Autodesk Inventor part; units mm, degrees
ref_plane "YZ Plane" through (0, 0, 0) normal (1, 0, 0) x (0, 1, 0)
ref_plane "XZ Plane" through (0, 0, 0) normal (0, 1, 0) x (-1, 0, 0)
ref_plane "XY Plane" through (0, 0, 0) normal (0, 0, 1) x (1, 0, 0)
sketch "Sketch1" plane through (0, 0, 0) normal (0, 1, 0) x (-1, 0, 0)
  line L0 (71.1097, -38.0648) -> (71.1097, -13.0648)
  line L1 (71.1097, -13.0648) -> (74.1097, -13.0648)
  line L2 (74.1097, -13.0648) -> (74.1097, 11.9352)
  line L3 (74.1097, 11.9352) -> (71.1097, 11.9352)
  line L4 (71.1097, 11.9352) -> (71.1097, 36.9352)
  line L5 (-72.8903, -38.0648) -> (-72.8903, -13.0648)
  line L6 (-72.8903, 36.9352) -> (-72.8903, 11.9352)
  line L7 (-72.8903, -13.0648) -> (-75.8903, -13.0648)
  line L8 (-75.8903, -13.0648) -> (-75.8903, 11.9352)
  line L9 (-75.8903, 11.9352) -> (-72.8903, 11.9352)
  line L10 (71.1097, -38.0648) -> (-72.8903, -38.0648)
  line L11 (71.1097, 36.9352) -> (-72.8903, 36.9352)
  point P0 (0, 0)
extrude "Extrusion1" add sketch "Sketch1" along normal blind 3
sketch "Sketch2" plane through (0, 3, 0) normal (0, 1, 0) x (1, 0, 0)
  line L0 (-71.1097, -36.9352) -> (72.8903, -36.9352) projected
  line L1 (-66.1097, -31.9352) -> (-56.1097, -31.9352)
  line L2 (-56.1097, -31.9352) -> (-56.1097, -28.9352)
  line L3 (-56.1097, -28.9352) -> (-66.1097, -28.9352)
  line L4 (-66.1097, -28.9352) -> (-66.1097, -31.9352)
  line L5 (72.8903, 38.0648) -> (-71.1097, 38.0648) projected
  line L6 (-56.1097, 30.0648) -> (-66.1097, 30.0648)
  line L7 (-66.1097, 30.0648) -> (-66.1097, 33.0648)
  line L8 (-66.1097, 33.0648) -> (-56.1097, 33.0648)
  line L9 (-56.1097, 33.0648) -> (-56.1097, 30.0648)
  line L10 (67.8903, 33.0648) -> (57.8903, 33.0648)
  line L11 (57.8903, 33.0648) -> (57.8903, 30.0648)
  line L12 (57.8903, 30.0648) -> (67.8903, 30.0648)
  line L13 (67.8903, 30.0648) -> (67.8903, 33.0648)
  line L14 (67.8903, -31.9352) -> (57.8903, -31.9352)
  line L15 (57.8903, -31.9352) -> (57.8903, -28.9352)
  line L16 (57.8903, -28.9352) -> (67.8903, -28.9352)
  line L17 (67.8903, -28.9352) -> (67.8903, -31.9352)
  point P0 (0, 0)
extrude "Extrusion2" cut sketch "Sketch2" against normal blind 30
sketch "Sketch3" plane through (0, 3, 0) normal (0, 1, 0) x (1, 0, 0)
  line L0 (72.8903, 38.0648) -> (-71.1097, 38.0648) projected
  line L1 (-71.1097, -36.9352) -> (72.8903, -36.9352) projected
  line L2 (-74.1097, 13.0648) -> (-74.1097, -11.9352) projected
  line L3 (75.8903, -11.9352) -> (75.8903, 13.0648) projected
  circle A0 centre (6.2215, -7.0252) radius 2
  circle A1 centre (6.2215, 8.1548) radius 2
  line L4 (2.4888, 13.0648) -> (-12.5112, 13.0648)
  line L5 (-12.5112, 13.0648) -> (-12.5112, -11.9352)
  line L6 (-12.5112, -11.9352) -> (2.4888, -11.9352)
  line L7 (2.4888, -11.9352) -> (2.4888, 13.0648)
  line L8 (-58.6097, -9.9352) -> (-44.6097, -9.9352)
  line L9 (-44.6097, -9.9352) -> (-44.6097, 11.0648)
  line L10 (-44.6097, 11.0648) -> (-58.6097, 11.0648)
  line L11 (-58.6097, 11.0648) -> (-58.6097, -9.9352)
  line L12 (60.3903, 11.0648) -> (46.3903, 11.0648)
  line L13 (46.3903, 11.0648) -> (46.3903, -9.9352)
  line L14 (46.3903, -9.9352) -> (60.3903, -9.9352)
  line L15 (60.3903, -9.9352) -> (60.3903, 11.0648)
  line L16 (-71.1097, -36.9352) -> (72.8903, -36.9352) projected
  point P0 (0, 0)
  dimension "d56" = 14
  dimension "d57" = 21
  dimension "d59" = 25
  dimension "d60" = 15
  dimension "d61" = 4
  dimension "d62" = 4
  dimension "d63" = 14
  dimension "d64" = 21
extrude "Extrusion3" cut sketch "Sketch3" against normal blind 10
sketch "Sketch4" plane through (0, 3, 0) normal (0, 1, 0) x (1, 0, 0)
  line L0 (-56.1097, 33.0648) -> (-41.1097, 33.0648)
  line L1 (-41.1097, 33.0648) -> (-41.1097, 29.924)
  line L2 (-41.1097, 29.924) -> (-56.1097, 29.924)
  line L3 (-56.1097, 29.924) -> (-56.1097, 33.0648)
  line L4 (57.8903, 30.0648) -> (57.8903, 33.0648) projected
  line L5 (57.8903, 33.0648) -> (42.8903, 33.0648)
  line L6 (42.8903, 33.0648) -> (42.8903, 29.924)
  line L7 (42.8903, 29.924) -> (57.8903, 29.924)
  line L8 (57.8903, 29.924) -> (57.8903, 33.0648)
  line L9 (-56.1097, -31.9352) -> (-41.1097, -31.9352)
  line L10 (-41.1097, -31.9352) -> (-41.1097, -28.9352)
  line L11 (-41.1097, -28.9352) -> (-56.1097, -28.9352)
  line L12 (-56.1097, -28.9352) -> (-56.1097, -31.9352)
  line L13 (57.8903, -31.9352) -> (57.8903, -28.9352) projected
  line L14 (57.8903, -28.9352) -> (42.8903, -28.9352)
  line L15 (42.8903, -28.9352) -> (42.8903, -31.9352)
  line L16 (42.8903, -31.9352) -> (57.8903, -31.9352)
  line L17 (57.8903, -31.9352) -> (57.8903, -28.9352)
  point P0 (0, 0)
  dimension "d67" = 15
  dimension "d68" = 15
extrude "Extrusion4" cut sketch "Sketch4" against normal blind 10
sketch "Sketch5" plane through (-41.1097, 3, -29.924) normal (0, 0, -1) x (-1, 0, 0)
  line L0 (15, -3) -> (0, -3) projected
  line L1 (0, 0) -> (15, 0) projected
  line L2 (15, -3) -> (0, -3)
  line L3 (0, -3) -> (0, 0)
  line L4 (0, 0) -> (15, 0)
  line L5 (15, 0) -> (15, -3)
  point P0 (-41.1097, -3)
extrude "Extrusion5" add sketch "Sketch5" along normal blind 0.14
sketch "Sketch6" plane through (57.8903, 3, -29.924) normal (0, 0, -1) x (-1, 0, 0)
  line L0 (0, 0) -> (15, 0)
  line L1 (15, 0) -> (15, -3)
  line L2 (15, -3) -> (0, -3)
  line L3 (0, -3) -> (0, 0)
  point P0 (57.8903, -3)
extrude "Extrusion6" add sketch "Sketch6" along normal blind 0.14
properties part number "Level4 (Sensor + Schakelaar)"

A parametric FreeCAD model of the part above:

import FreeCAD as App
import Part
import Sketcher

V = App.Vector
Q = App.Units.Quantity

doc = App.newDocument("Part")
body = doc.addObject("PartDesign::Body", "Body")

# Sketch on XZ plane
sketch1 = body.newObject("Sketcher::SketchObject", "Sketch")
sketch1.AttachmentSupport = (doc.getObject("XZ_Plane"), [""])
sketch1.MapMode = "FlatFace"
sketch1.addGeometry([
    Part.LineSegment(V(72.8903, -38.0648, 0), V(-71.1097, -38.0648, 0)),  # 0
    Part.LineSegment(V(-71.1097, -38.0648, 0), V(-71.1097, -13.0648, 0)),  # 1
    Part.LineSegment(V(-71.1097, -13.0648, 0), V(-74.1097, -13.0648, 0)),  # 2
    Part.LineSegment(V(-74.1097, -13.0648, 0), V(-74.1097, 11.9352, 0)),  # 3
    Part.LineSegment(V(-74.1097, 11.9352, 0), V(-71.1097, 11.9352, 0)),  # 4
    Part.LineSegment(V(-71.1097, 11.9352, 0), V(-71.1097, 36.9352, 0)),  # 5
    Part.LineSegment(V(-71.1097, 36.9352, 0), V(72.8903, 36.9352, 0)),  # 6
    Part.LineSegment(V(72.8903, 36.9352, 0), V(72.8903, 11.9352, 0)),  # 7
    Part.LineSegment(V(72.8903, 11.9352, 0), V(75.8903, 11.9352, 0)),  # 8
    Part.LineSegment(V(75.8903, 11.9352, 0), V(75.8903, -13.0648, 0)),  # 9
    Part.LineSegment(V(75.8903, -13.0648, 0), V(72.8903, -13.0648, 0)),  # 10
    Part.LineSegment(V(72.8903, -13.0648, 0), V(72.8903, -38.0648, 0)),  # 11
], False)
sketch1.addConstraint([
    Sketcher.Constraint("Coincident", 0, 2, 1, 1),
    Sketcher.Constraint("Coincident", 1, 2, 2, 1),
    Sketcher.Constraint("Coincident", 2, 2, 3, 1),
    Sketcher.Constraint("Coincident", 3, 2, 4, 1),
    Sketcher.Constraint("Coincident", 4, 2, 5, 1),
    Sketcher.Constraint("Coincident", 5, 2, 6, 1),
    Sketcher.Constraint("Coincident", 6, 2, 7, 1),
    Sketcher.Constraint("Coincident", 7, 2, 8, 1),
    Sketcher.Constraint("Coincident", 8, 2, 9, 1),
    Sketcher.Constraint("Coincident", 9, 2, 10, 1),
    Sketcher.Constraint("Coincident", 10, 2, 11, 1),
    Sketcher.Constraint("Coincident", 11, 2, 0, 1),
    Sketcher.Constraint("Horizontal", 0),
    Sketcher.Constraint("Vertical", 1),
    Sketcher.Constraint("Horizontal", 2),
    Sketcher.Constraint("Vertical", 3),
    Sketcher.Constraint("Horizontal", 4),
    Sketcher.Constraint("Vertical", 5),
    Sketcher.Constraint("Horizontal", 6),
    Sketcher.Constraint("Vertical", 7),
    Sketcher.Constraint("Horizontal", 8),
    Sketcher.Constraint("Vertical", 9),
    Sketcher.Constraint("Horizontal", 10),
    Sketcher.Constraint("Vertical", 11),
    Sketcher.Constraint("Horizontal", 4, 2, 7, 2),
    Sketcher.Constraint("Horizontal", 2, 2, 9, 2),
    Sketcher.Constraint("Vertical", 1, 2, 4, 2),
    Sketcher.Constraint("Vertical", 7, 2, 10, 2),
    Sketcher.Constraint("Equal", 4, 8),
    Sketcher.Constraint("Equal", 1, 3),
    Sketcher.Constraint("Equal", 3, 5),
    Sketcher.Constraint("DistanceX", 0, 2, 0, 1, Q("144 mm")),
    Sketcher.Constraint("DistanceX", 2, 2, 2, 1, Q("3 mm")),
    Sketcher.Constraint("DistanceY", 1, 1, 1, 2, Q("25 mm")),
    Sketcher.Constraint("DistanceX", 0, 2, -1, 1, Q("71.1097 mm")),
    Sketcher.Constraint("DistanceY", 0, 2, -1, 1, Q("38.0648 mm")),
])
pad1 = body.newObject("PartDesign::Pad", "Pad")
pad1.Profile = sketch1
pad1.Length = 3
pad1.Reversed = True

# Sketch on XZ plane
sketch2 = body.newObject("Sketcher::SketchObject", "Sketch001")
sketch2.AttachmentSupport = (doc.getObject("XZ_Plane"), [""])
sketch2.MapMode = "FlatFace"
sketch2.AttachmentOffset = App.Placement(V(0, 0, -3), App.Rotation())
sketch2.addGeometry([
    Part.LineSegment(V(-66.1097, 28.9352, 0), V(-66.1097, 31.9352, 0)),  # 0
    Part.LineSegment(V(-66.1097, 31.9352, 0), V(-56.1097, 31.9352, 0)),  # 1
    Part.LineSegment(V(-56.1097, 31.9352, 0), V(-56.1097, 28.9352, 0)),  # 2
    Part.LineSegment(V(-56.1097, 28.9352, 0), V(-66.1097, 28.9352, 0)),  # 3
    Part.LineSegment(V(-66.1097, -30.0648, 0), V(-56.1097, -30.0648, 0)),  # 4
    Part.LineSegment(V(-56.1097, -30.0648, 0), V(-56.1097, -33.0648, 0)),  # 5
    Part.LineSegment(V(-56.1097, -33.0648, 0), V(-66.1097, -33.0648, 0)),  # 6
    Part.LineSegment(V(-66.1097, -33.0648, 0), V(-66.1097, -30.0648, 0)),  # 7
    Part.LineSegment(V(67.8903, -30.0648, 0), V(67.8903, -33.0648, 0)),  # 8
    Part.LineSegment(V(67.8903, -33.0648, 0), V(57.8903, -33.0648, 0)),  # 9
    Part.LineSegment(V(57.8903, -33.0648, 0), V(57.8903, -30.0648, 0)),  # 10
    Part.LineSegment(V(57.8903, -30.0648, 0), V(67.8903, -30.0648, 0)),  # 11
    Part.LineSegment(V(57.8903, 31.9352, 0), V(67.8903, 31.9352, 0)),  # 12
    Part.LineSegment(V(67.8903, 31.9352, 0), V(67.8903, 28.9352, 0)),  # 13
    Part.LineSegment(V(67.8903, 28.9352, 0), V(57.8903, 28.9352, 0)),  # 14
    Part.LineSegment(V(57.8903, 28.9352, 0), V(57.8903, 31.9352, 0)),  # 15
], False)
sketch2.addConstraint([
    Sketcher.Constraint("Coincident", 0, 2, 1, 1),
    Sketcher.Constraint("Coincident", 1, 2, 2, 1),
    Sketcher.Constraint("Coincident", 2, 2, 3, 1),
    Sketcher.Constraint("Coincident", 3, 2, 0, 1),
    Sketcher.Constraint("Coincident", 4, 2, 5, 1),
    Sketcher.Constraint("Coincident", 5, 2, 6, 1),
    Sketcher.Constraint("Coincident", 6, 2, 7, 1),
    Sketcher.Constraint("Coincident", 7, 2, 4, 1),
    Sketcher.Constraint("Coincident", 8, 2, 9, 1),
    Sketcher.Constraint("Coincident", 9, 2, 10, 1),
    Sketcher.Constraint("Coincident", 10, 2, 11, 1),
    Sketcher.Constraint("Coincident", 11, 2, 8, 1),
    Sketcher.Constraint("Coincident", 12, 2, 13, 1),
    Sketcher.Constraint("Coincident", 13, 2, 14, 1),
    Sketcher.Constraint("Coincident", 14, 2, 15, 1),
    Sketcher.Constraint("Coincident", 15, 2, 12, 1),
    Sketcher.Constraint("Vertical", 0),
    Sketcher.Constraint("Horizontal", 1),
    Sketcher.Constraint("Vertical", 2),
    Sketcher.Constraint("Horizontal", 3),
    Sketcher.Constraint("Horizontal", 4),
    Sketcher.Constraint("Vertical", 5),
    Sketcher.Constraint("Horizontal", 6),
    Sketcher.Constraint("Vertical", 7),
    Sketcher.Constraint("Vertical", 8),
    Sketcher.Constraint("Horizontal", 9),
    Sketcher.Constraint("Vertical", 10),
    Sketcher.Constraint("Horizontal", 11),
    Sketcher.Constraint("Horizontal", 12),
    Sketcher.Constraint("Vertical", 13),
    Sketcher.Constraint("Horizontal", 14),
    Sketcher.Constraint("Vertical", 15),
    Sketcher.Constraint("Horizontal", 6, 2, 8, 2),
    Sketcher.Constraint("Horizontal", 7, 2, 10, 2),
    Sketcher.Constraint("Horizontal", 1, 2, 12, 2),
    Sketcher.Constraint("Horizontal", 3, 2, 13, 2),
    Sketcher.Constraint("Vertical", 2, 2, 4, 2),
    Sketcher.Constraint("Vertical", 3, 2, 6, 2),
    Sketcher.Constraint("Vertical", 11, 2, 12, 2),
    Sketcher.Constraint("Vertical", 10, 2, 14, 2),
    Sketcher.Constraint("Equal", 6, 9),
    Sketcher.Constraint("Equal", 2, 5),
    Sketcher.Constraint("DistanceX", 1, 1, 1, 2, Q("10 mm")),
    Sketcher.Constraint("DistanceY", 0, 1, 0, 2, Q("3 mm")),
    Sketcher.Constraint("DistanceY", 4, 2, 2, 2, Q("59 mm")),
    Sketcher.Constraint("DistanceX", 5, 2, 8, 2, Q("124 mm")),
    Sketcher.Constraint("DistanceX", 0, 2, -1, 1, Q("66.1097 mm")),
    Sketcher.Constraint("DistanceY", -1, 1, 0, 2, Q("31.9352 mm")),
])
pocket1 = body.newObject("PartDesign::Pocket", "Pocket")
pocket1.Profile = sketch2
pocket1.Length = 30
pocket1.Reversed = True

# Sketch on XZ plane
sketch3 = body.newObject("Sketcher::SketchObject", "Sketch002")
sketch3.AttachmentSupport = (doc.getObject("XZ_Plane"), [""])
sketch3.MapMode = "FlatFace"
sketch3.AttachmentOffset = App.Placement(V(0, 0, -3), App.Rotation())
sketch3.addGeometry([
    Part.Circle(V(6.2215, 7.0252, 0), V(0, 0, 1), 2),  # 0
    Part.Circle(V(6.2215, -8.1548, 0), V(0, 0, 1), 2),  # 1
    Part.LineSegment(V(2.4888, 11.9352, 0), V(2.4888, -13.0648, 0)),  # 2
    Part.LineSegment(V(2.4888, -13.0648, 0), V(-12.5112, -13.0648, 0)),  # 3
    Part.LineSegment(V(-12.5112, -13.0648, 0), V(-12.5112, 11.9352, 0)),  # 4
    Part.LineSegment(V(-12.5112, 11.9352, 0), V(2.4888, 11.9352, 0)),  # 5
    Part.LineSegment(V(-58.6097, -11.0648, 0), V(-58.6097, 9.9352, 0)),  # 6
    Part.LineSegment(V(-58.6097, 9.9352, 0), V(-44.6097, 9.9352, 0)),  # 7
    Part.LineSegment(V(-44.6097, 9.9352, 0), V(-44.6097, -11.0648, 0)),  # 8
    Part.LineSegment(V(-44.6097, -11.0648, 0), V(-58.6097, -11.0648, 0)),  # 9
    Part.LineSegment(V(60.3903, 9.9352, 0), V(60.3903, -11.0648, 0)),  # 10
    Part.LineSegment(V(60.3903, -11.0648, 0), V(46.3903, -11.0648, 0)),  # 11
    Part.LineSegment(V(46.3903, -11.0648, 0), V(46.3903, 9.9352, 0)),  # 12
    Part.LineSegment(V(46.3903, 9.9352, 0), V(60.3903, 9.9352, 0)),  # 13
], False)
sketch3.addConstraint([
    Sketcher.Constraint("Coincident", 2, 2, 3, 1),
    Sketcher.Constraint("Coincident", 3, 2, 4, 1),
    Sketcher.Constraint("Coincident", 4, 2, 5, 1),
    Sketcher.Constraint("Coincident", 5, 2, 2, 1),
    Sketcher.Constraint("Coincident", 6, 2, 7, 1),
    Sketcher.Constraint("Coincident", 7, 2, 8, 1),
    Sketcher.Constraint("Coincident", 8, 2, 9, 1),
    Sketcher.Constraint("Coincident", 9, 2, 6, 1),
    Sketcher.Constraint("Coincident", 10, 2, 11, 1),
    Sketcher.Constraint("Coincident", 11, 2, 12, 1),
    Sketcher.Constraint("Coincident", 12, 2, 13, 1),
    Sketcher.Constraint("Coincident", 13, 2, 10, 1),
    Sketcher.Constraint("Vertical", 2),
    Sketcher.Constraint("Horizontal", 3),
    Sketcher.Constraint("Vertical", 4),
    Sketcher.Constraint("Horizontal", 5),
    Sketcher.Constraint("Vertical", 6),
    Sketcher.Constraint("Horizontal", 7),
    Sketcher.Constraint("Vertical", 8),
    Sketcher.Constraint("Horizontal", 9),
    Sketcher.Constraint("Vertical", 10),
    Sketcher.Constraint("Horizontal", 11),
    Sketcher.Constraint("Vertical", 12),
    Sketcher.Constraint("Horizontal", 13),
    Sketcher.Constraint("Equal", 0, 1),
    Sketcher.Constraint("Horizontal", 9, 2, 10, 2),
    Sketcher.Constraint("Horizontal", 7, 2, 12, 2),
    Sketcher.Constraint("Vertical", 0, 3, 1, 3),
    Sketcher.Constraint("Equal", 9, 11),
    Sketcher.Constraint("Diameter", 0, Q("4 mm")),
    Sketcher.Constraint("DistanceX", 3, 2, 3, 1, Q("15 mm")),
    Sketcher.Constraint("DistanceX", 7, 1, 7, 2, Q("14 mm")),
    Sketcher.Constraint("DistanceY", 2, 2, 2, 1, Q("25 mm")),
    Sketcher.Constraint("DistanceY", 6, 1, 6, 2, Q("21 mm")),
    Sketcher.Constraint("DistanceY", 6, 2, 4, 2, Q("2 mm")),
    Sketcher.Constraint("DistanceY", 1, 3, 0, 3, Q("15.18 mm")),
    Sketcher.Constraint("DistanceY", 2, 2, 1, 3, Q("4.91 mm")),
    Sketcher.Constraint("DistanceX", -1, 1, 0, 3, Q("6.2215 mm")),
    Sketcher.Constraint("DistanceY", -1, 1, 0, 3, Q("7.0252 mm")),
    Sketcher.Constraint("DistanceX", -1, 1, 2, 2, Q("2.4888 mm")),
    Sketcher.Constraint("DistanceX", 6, 2, -1, 1, Q("58.6097 mm")),
    Sketcher.Constraint("DistanceX", -1, 1, 10, 2, Q("60.3903 mm")),
])
pocket2 = body.newObject("PartDesign::Pocket", "Pocket001")
pocket2.Profile = sketch3
pocket2.Length = 10
pocket2.Reversed = True

# Sketch on XZ plane
sketch4 = body.newObject("Sketcher::SketchObject", "Sketch003")
sketch4.AttachmentSupport = (doc.getObject("XZ_Plane"), [""])
sketch4.MapMode = "FlatFace"
sketch4.AttachmentOffset = App.Placement(V(0, 0, -3), App.Rotation())
sketch4.addGeometry([
    Part.LineSegment(V(-41.1097, -33.0648, 0), V(-56.1097, -33.0648, 0)),  # 0
    Part.LineSegment(V(-56.1097, -33.0648, 0), V(-56.1097, -29.924, 0)),  # 1
    Part.LineSegment(V(-56.1097, -29.924, 0), V(-41.1097, -29.924, 0)),  # 2
    Part.LineSegment(V(-41.1097, -29.924, 0), V(-41.1097, -33.0648, 0)),  # 3
    Part.LineSegment(V(57.8903, -29.924, 0), V(57.8903, -33.0648, 0)),  # 4
    Part.LineSegment(V(57.8903, -33.0648, 0), V(42.8903, -33.0648, 0)),  # 5
    Part.LineSegment(V(42.8903, -33.0648, 0), V(42.8903, -29.924, 0)),  # 6
    Part.LineSegment(V(42.8903, -29.924, 0), V(57.8903, -29.924, 0)),  # 7
    Part.LineSegment(V(-56.1097, 28.9352, 0), V(-56.1097, 31.9352, 0)),  # 8
    Part.LineSegment(V(-56.1097, 31.9352, 0), V(-41.1097, 31.9352, 0)),  # 9
    Part.LineSegment(V(-41.1097, 31.9352, 0), V(-41.1097, 28.9352, 0)),  # 10
    Part.LineSegment(V(-41.1097, 28.9352, 0), V(-56.1097, 28.9352, 0)),  # 11
    Part.LineSegment(V(42.8903, 31.9352, 0), V(57.8903, 31.9352, 0)),  # 12
    Part.LineSegment(V(57.8903, 31.9352, 0), V(57.8903, 28.9352, 0)),  # 13
    Part.LineSegment(V(57.8903, 28.9352, 0), V(42.8903, 28.9352, 0)),  # 14
    Part.LineSegment(V(42.8903, 28.9352, 0), V(42.8903, 31.9352, 0)),  # 15
], False)
sketch4.addConstraint([
    Sketcher.Constraint("Coincident", 0, 2, 1, 1),
    Sketcher.Constraint("Coincident", 1, 2, 2, 1),
    Sketcher.Constraint("Coincident", 2, 2, 3, 1),
    Sketcher.Constraint("Coincident", 3, 2, 0, 1),
    Sketcher.Constraint("Coincident", 4, 2, 5, 1),
    Sketcher.Constraint("Coincident", 5, 2, 6, 1),
    Sketcher.Constraint("Coincident", 6, 2, 7, 1),
    Sketcher.Constraint("Coincident", 7, 2, 4, 1),
    Sketcher.Constraint("Coincident", 8, 2, 9, 1),
    Sketcher.Constraint("Coincident", 9, 2, 10, 1),
    Sketcher.Constraint("Coincident", 10, 2, 11, 1),
    Sketcher.Constraint("Coincident", 11, 2, 8, 1),
    Sketcher.Constraint("Coincident", 12, 2, 13, 1),
    Sketcher.Constraint("Coincident", 13, 2, 14, 1),
    Sketcher.Constraint("Coincident", 14, 2, 15, 1),
    Sketcher.Constraint("Coincident", 15, 2, 12, 1),
    Sketcher.Constraint("Horizontal", 0),
    Sketcher.Constraint("Vertical", 1),
    Sketcher.Constraint("Horizontal", 2),
    Sketcher.Constraint("Vertical", 3),
    Sketcher.Constraint("Vertical", 4),
    Sketcher.Constraint("Horizontal", 5),
    Sketcher.Constraint("Vertical", 6),
    Sketcher.Constraint("Horizontal", 7),
    Sketcher.Constraint("Vertical", 8),
    Sketcher.Constraint("Horizontal", 9),
    Sketcher.Constraint("Vertical", 10),
    Sketcher.Constraint("Horizontal", 11),
    Sketcher.Constraint("Horizontal", 12),
    Sketcher.Constraint("Vertical", 13),
    Sketcher.Constraint("Horizontal", 14),
    Sketcher.Constraint("Vertical", 15),
    Sketcher.Constraint("Horizontal", 3, 2, 4, 2),
    Sketcher.Constraint("Horizontal", 2, 2, 6, 2),
    Sketcher.Constraint("Horizontal", 9, 2, 12, 2),
    Sketcher.Constraint("Horizontal", 11, 2, 13, 2),
    Sketcher.Constraint("Vertical", 1, 2, 8, 2),
    Sketcher.Constraint("Vertical", 3, 2, 9, 2),
    Sketcher.Constraint("Vertical", 7, 2, 12, 2),
    Sketcher.Constraint("Vertical", 6, 2, 14, 2),
    Sketcher.Constraint("Equal", 2, 5),
    Sketcher.Constraint("DistanceX", 0, 2, 0, 1, Q("15 mm")),
    Sketcher.Constraint("DistanceY", 8, 1, 8, 2, Q("3 mm")),
    Sketcher.Constraint("DistanceX", 3, 2, 4, 2, Q("99 mm")),
    Sketcher.Constraint("DistanceY", 0, 2, 8, 2, Q("65 mm")),
    Sketcher.Constraint("DistanceY", 1, 1, 1, 2, Q("3.1408 mm")),
    Sketcher.Constraint("DistanceY", 1, 2, -1, 1, Q("29.924 mm")),
    Sketcher.Constraint("DistanceX", 0, 2, -1, 1, Q("56.1097 mm")),
])
pocket3 = body.newObject("PartDesign::Pocket", "Pocket002")
pocket3.Profile = sketch4
pocket3.Length = 10
pocket3.Reversed = True

# Sketch on XY plane
sketch5 = body.newObject("Sketcher::SketchObject", "Sketch004")
sketch5.AttachmentSupport = (doc.getObject("XY_Plane"), [""])
sketch5.MapMode = "FlatFace"
sketch5.AttachmentOffset = App.Placement(V(0, 0, -29.924), App.Rotation())
sketch5.addGeometry([
    Part.LineSegment(V(-41.1097, 0, 0), V(-56.1097, 0, 0)),
    Part.LineSegment(V(-56.1097, 0, 0), V(-56.1097, 3, 0)),
    Part.LineSegment(V(-56.1097, 3, 0), V(-41.1097, 3, 0)),
    Part.LineSegment(V(-41.1097, 3, 0), V(-41.1097, 0, 0)),
], False)
sketch5.addConstraint([
    Sketcher.Constraint("Coincident", 0, 2, 1, 1),
    Sketcher.Constraint("Coincident", 1, 2, 2, 1),
    Sketcher.Constraint("Coincident", 2, 2, 3, 1),
    Sketcher.Constraint("Coincident", 3, 2, 0, 1),
    Sketcher.Constraint("Horizontal", 0),
    Sketcher.Constraint("Vertical", 1),
    Sketcher.Constraint("Horizontal", 2),
    Sketcher.Constraint("Vertical", 3),
    Sketcher.Constraint("PointOnObject", 0, 2, -1),
    Sketcher.Constraint("DistanceX", 0, 2, 0, 1, Q("15 mm")),
    Sketcher.Constraint("DistanceY", 1, 1, 1, 2, Q("3 mm")),
    Sketcher.Constraint("DistanceX", 0, 2, -1, 1, Q("56.1097 mm")),
])
pad2 = body.newObject("PartDesign::Pad", "Pad001")
pad2.Profile = sketch5
pad2.Length = 0.14
pad2.Reversed = True

# Sketch on XY plane
sketch6 = body.newObject("Sketcher::SketchObject", "Sketch005")
sketch6.AttachmentSupport = (doc.getObject("XY_Plane"), [""])
sketch6.MapMode = "FlatFace"
sketch6.AttachmentOffset = App.Placement(V(0, 0, -29.924), App.Rotation())
sketch6.addGeometry([
    Part.LineSegment(V(42.8903, 3, 0), V(57.8903, 3, 0)),
    Part.LineSegment(V(57.8903, 3, 0), V(57.8903, 0, 0)),
    Part.LineSegment(V(57.8903, 0, 0), V(42.8903, 0, 0)),
    Part.LineSegment(V(42.8903, 0, 0), V(42.8903, 3, 0)),
], False)
sketch6.addConstraint([
    Sketcher.Constraint("Coincident", 0, 2, 1, 1),
    Sketcher.Constraint("Coincident", 1, 2, 2, 1),
    Sketcher.Constraint("Coincident", 2, 2, 3, 1),
    Sketcher.Constraint("Coincident", 3, 2, 0, 1),
    Sketcher.Constraint("Horizontal", 0),
    Sketcher.Constraint("Vertical", 1),
    Sketcher.Constraint("Horizontal", 2),
    Sketcher.Constraint("Vertical", 3),
    Sketcher.Constraint("PointOnObject", 1, 2, -1),
    Sketcher.Constraint("DistanceX", 0, 1, 0, 2, Q("15 mm")),
    Sketcher.Constraint("DistanceY", 1, 2, 1, 1, Q("3 mm")),
    Sketcher.Constraint("DistanceX", -1, 1, 0, 2, Q("57.8903 mm")),
])
pad3 = body.newObject("PartDesign::Pad", "Pad002")
pad3.Profile = sketch6
pad3.Length = 0.14
pad3.Reversed = True

doc.recompute()
